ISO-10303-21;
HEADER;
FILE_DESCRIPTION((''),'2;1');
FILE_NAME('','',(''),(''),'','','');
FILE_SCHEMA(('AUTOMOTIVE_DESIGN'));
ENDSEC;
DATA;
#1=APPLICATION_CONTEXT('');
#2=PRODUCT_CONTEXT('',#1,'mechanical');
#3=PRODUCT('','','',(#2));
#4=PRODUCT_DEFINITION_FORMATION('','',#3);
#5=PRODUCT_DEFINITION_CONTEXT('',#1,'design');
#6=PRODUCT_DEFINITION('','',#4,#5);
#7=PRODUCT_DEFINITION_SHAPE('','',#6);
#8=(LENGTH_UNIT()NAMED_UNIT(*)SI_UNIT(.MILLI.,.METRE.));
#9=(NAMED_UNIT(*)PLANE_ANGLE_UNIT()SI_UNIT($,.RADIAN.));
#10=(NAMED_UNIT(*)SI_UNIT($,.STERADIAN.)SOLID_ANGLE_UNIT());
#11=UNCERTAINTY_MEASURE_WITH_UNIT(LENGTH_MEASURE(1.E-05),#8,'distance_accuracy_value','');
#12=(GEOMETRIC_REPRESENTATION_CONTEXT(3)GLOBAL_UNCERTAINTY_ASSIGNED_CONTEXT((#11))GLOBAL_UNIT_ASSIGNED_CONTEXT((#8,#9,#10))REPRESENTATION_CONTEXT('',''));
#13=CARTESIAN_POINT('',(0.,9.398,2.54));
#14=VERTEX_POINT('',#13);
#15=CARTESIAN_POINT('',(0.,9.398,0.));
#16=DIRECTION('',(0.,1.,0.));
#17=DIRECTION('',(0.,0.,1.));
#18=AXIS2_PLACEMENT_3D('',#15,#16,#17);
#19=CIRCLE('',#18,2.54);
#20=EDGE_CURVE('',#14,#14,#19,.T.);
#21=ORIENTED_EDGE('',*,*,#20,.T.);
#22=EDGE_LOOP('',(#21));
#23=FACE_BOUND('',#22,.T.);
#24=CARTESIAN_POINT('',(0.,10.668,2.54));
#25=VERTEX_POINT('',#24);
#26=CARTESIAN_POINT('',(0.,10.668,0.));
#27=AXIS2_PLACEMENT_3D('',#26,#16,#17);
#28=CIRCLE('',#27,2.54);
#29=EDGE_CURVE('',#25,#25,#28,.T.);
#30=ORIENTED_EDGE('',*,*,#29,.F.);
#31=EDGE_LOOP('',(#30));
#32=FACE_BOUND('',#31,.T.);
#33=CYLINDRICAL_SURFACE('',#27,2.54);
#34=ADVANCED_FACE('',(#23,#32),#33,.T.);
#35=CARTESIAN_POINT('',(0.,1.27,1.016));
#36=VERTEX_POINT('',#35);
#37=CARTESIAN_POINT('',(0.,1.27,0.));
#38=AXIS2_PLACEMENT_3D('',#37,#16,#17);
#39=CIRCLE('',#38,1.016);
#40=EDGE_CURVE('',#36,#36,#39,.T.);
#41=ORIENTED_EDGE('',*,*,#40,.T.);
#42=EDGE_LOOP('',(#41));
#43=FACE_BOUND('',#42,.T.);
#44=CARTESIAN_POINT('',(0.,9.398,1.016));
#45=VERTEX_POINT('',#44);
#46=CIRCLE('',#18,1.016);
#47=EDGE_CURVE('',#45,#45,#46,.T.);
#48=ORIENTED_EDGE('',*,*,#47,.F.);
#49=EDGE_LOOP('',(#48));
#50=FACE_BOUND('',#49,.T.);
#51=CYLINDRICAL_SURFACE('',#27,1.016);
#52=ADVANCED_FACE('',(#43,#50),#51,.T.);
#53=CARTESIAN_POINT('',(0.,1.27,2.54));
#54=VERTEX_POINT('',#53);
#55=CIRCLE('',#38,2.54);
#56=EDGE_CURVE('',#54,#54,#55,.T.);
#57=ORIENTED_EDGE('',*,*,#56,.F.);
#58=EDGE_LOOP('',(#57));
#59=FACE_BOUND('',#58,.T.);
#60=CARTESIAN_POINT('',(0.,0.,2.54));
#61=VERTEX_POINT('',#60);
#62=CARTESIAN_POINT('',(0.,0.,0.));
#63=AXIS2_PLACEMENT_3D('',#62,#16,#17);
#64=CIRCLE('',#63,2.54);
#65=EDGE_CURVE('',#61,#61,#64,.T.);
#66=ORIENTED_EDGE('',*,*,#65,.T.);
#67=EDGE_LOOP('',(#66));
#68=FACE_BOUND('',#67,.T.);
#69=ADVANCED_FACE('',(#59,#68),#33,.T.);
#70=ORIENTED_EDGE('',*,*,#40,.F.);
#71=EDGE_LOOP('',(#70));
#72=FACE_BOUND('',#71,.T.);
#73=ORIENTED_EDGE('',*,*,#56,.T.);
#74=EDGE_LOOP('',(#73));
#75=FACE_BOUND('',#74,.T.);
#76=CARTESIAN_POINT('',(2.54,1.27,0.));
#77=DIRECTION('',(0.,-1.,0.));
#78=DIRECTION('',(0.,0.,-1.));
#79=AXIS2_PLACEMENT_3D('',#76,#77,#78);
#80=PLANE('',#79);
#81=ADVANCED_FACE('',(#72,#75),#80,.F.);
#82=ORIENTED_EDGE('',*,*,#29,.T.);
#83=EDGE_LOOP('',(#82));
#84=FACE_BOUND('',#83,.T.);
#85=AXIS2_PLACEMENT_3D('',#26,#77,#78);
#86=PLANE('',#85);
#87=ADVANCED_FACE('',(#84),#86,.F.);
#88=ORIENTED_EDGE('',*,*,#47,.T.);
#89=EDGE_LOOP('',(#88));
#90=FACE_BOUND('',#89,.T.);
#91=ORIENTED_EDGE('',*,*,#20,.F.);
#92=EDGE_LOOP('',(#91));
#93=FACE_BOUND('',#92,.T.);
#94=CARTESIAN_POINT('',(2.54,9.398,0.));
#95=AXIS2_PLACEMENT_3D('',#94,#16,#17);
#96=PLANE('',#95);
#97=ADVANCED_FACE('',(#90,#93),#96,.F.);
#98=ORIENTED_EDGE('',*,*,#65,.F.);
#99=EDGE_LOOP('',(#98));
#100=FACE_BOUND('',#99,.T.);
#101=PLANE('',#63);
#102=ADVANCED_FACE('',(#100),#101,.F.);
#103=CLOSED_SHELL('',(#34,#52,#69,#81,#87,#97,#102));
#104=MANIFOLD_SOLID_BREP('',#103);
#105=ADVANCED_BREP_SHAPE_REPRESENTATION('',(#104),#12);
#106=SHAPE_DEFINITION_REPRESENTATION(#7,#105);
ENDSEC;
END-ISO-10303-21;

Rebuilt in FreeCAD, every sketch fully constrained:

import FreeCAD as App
import Part
import Sketcher
from FreeCAD import Vector
Q = App.Units.Quantity

doc = App.newDocument("Part")
body = doc.addObject("PartDesign::Body", "Body")

sketch1 = body.newObject("Sketcher::SketchObject", "Sketch")
sketch1.AttachmentSupport = (doc.getObject("XY_Plane"), [""])
sketch1.MapMode = "FlatFace"
sketch1.addGeometry([
    Part.LineSegment(Vector(0, 10.668, 0), Vector(0, 0, 0)),
    Part.LineSegment(Vector(0, 0, 0), Vector(2.54, 0, 0)),
    Part.LineSegment(Vector(2.54, 0, 0), Vector(2.54, 1.27, 0)),
    Part.LineSegment(Vector(2.54, 1.27, 0), Vector(1.016, 1.27, 0)),
    Part.LineSegment(Vector(1.016, 1.27, 0), Vector(1.016, 9.398, 0)),
    Part.LineSegment(Vector(1.016, 9.398, 0), Vector(2.54, 9.398, 0)),
    Part.LineSegment(Vector(2.54, 9.398, 0), Vector(2.54, 10.668, 0)),
    Part.LineSegment(Vector(2.54, 10.668, 0), Vector(0, 10.668, 0)),
], False)
sketch1.addConstraint([
    Sketcher.Constraint("Coincident", 0, 2, 1, 1),
    Sketcher.Constraint("Coincident", 1, 2, 2, 1),
    Sketcher.Constraint("Coincident", 2, 2, 3, 1),
    Sketcher.Constraint("Coincident", 3, 2, 4, 1),
    Sketcher.Constraint("Coincident", 4, 2, 5, 1),
    Sketcher.Constraint("Coincident", 5, 2, 6, 1),
    Sketcher.Constraint("Coincident", 6, 2, 7, 1),
    Sketcher.Constraint("Coincident", 7, 2, 0, 1),
    Sketcher.Constraint("Vertical", 0),
    Sketcher.Constraint("Horizontal", 1),
    Sketcher.Constraint("Vertical", 2),
    Sketcher.Constraint("Horizontal", 3),
    Sketcher.Constraint("Vertical", 4),
    Sketcher.Constraint("Horizontal", 5),
    Sketcher.Constraint("Vertical", 6),
    Sketcher.Constraint("Horizontal", 7),
    Sketcher.Constraint("Coincident", 0, 2, -1, 1),
    Sketcher.Constraint("Vertical", 2, 2, 5, 2),
    Sketcher.Constraint("Equal", 2, 6),
    Sketcher.Constraint("DistanceX", 1, 1, 1, 2, Q("0.1 in")),
    Sketcher.Constraint("DistanceX", 3, 2, 3, 1, Q("0.06 in")),
    Sketcher.Constraint("DistanceY", 0, 2, 0, 1, Q("0.42 in")),
    Sketcher.Constraint("DistanceY", 2, 1, 2, 2, Q("0.05 in")),
])
revolution = body.newObject("PartDesign::Revolution", "Revolution")
revolution.Profile = sketch1
revolution.ReferenceAxis = (sketch1, ["V_Axis"])
revolution.Angle = 360

doc.recompute()
